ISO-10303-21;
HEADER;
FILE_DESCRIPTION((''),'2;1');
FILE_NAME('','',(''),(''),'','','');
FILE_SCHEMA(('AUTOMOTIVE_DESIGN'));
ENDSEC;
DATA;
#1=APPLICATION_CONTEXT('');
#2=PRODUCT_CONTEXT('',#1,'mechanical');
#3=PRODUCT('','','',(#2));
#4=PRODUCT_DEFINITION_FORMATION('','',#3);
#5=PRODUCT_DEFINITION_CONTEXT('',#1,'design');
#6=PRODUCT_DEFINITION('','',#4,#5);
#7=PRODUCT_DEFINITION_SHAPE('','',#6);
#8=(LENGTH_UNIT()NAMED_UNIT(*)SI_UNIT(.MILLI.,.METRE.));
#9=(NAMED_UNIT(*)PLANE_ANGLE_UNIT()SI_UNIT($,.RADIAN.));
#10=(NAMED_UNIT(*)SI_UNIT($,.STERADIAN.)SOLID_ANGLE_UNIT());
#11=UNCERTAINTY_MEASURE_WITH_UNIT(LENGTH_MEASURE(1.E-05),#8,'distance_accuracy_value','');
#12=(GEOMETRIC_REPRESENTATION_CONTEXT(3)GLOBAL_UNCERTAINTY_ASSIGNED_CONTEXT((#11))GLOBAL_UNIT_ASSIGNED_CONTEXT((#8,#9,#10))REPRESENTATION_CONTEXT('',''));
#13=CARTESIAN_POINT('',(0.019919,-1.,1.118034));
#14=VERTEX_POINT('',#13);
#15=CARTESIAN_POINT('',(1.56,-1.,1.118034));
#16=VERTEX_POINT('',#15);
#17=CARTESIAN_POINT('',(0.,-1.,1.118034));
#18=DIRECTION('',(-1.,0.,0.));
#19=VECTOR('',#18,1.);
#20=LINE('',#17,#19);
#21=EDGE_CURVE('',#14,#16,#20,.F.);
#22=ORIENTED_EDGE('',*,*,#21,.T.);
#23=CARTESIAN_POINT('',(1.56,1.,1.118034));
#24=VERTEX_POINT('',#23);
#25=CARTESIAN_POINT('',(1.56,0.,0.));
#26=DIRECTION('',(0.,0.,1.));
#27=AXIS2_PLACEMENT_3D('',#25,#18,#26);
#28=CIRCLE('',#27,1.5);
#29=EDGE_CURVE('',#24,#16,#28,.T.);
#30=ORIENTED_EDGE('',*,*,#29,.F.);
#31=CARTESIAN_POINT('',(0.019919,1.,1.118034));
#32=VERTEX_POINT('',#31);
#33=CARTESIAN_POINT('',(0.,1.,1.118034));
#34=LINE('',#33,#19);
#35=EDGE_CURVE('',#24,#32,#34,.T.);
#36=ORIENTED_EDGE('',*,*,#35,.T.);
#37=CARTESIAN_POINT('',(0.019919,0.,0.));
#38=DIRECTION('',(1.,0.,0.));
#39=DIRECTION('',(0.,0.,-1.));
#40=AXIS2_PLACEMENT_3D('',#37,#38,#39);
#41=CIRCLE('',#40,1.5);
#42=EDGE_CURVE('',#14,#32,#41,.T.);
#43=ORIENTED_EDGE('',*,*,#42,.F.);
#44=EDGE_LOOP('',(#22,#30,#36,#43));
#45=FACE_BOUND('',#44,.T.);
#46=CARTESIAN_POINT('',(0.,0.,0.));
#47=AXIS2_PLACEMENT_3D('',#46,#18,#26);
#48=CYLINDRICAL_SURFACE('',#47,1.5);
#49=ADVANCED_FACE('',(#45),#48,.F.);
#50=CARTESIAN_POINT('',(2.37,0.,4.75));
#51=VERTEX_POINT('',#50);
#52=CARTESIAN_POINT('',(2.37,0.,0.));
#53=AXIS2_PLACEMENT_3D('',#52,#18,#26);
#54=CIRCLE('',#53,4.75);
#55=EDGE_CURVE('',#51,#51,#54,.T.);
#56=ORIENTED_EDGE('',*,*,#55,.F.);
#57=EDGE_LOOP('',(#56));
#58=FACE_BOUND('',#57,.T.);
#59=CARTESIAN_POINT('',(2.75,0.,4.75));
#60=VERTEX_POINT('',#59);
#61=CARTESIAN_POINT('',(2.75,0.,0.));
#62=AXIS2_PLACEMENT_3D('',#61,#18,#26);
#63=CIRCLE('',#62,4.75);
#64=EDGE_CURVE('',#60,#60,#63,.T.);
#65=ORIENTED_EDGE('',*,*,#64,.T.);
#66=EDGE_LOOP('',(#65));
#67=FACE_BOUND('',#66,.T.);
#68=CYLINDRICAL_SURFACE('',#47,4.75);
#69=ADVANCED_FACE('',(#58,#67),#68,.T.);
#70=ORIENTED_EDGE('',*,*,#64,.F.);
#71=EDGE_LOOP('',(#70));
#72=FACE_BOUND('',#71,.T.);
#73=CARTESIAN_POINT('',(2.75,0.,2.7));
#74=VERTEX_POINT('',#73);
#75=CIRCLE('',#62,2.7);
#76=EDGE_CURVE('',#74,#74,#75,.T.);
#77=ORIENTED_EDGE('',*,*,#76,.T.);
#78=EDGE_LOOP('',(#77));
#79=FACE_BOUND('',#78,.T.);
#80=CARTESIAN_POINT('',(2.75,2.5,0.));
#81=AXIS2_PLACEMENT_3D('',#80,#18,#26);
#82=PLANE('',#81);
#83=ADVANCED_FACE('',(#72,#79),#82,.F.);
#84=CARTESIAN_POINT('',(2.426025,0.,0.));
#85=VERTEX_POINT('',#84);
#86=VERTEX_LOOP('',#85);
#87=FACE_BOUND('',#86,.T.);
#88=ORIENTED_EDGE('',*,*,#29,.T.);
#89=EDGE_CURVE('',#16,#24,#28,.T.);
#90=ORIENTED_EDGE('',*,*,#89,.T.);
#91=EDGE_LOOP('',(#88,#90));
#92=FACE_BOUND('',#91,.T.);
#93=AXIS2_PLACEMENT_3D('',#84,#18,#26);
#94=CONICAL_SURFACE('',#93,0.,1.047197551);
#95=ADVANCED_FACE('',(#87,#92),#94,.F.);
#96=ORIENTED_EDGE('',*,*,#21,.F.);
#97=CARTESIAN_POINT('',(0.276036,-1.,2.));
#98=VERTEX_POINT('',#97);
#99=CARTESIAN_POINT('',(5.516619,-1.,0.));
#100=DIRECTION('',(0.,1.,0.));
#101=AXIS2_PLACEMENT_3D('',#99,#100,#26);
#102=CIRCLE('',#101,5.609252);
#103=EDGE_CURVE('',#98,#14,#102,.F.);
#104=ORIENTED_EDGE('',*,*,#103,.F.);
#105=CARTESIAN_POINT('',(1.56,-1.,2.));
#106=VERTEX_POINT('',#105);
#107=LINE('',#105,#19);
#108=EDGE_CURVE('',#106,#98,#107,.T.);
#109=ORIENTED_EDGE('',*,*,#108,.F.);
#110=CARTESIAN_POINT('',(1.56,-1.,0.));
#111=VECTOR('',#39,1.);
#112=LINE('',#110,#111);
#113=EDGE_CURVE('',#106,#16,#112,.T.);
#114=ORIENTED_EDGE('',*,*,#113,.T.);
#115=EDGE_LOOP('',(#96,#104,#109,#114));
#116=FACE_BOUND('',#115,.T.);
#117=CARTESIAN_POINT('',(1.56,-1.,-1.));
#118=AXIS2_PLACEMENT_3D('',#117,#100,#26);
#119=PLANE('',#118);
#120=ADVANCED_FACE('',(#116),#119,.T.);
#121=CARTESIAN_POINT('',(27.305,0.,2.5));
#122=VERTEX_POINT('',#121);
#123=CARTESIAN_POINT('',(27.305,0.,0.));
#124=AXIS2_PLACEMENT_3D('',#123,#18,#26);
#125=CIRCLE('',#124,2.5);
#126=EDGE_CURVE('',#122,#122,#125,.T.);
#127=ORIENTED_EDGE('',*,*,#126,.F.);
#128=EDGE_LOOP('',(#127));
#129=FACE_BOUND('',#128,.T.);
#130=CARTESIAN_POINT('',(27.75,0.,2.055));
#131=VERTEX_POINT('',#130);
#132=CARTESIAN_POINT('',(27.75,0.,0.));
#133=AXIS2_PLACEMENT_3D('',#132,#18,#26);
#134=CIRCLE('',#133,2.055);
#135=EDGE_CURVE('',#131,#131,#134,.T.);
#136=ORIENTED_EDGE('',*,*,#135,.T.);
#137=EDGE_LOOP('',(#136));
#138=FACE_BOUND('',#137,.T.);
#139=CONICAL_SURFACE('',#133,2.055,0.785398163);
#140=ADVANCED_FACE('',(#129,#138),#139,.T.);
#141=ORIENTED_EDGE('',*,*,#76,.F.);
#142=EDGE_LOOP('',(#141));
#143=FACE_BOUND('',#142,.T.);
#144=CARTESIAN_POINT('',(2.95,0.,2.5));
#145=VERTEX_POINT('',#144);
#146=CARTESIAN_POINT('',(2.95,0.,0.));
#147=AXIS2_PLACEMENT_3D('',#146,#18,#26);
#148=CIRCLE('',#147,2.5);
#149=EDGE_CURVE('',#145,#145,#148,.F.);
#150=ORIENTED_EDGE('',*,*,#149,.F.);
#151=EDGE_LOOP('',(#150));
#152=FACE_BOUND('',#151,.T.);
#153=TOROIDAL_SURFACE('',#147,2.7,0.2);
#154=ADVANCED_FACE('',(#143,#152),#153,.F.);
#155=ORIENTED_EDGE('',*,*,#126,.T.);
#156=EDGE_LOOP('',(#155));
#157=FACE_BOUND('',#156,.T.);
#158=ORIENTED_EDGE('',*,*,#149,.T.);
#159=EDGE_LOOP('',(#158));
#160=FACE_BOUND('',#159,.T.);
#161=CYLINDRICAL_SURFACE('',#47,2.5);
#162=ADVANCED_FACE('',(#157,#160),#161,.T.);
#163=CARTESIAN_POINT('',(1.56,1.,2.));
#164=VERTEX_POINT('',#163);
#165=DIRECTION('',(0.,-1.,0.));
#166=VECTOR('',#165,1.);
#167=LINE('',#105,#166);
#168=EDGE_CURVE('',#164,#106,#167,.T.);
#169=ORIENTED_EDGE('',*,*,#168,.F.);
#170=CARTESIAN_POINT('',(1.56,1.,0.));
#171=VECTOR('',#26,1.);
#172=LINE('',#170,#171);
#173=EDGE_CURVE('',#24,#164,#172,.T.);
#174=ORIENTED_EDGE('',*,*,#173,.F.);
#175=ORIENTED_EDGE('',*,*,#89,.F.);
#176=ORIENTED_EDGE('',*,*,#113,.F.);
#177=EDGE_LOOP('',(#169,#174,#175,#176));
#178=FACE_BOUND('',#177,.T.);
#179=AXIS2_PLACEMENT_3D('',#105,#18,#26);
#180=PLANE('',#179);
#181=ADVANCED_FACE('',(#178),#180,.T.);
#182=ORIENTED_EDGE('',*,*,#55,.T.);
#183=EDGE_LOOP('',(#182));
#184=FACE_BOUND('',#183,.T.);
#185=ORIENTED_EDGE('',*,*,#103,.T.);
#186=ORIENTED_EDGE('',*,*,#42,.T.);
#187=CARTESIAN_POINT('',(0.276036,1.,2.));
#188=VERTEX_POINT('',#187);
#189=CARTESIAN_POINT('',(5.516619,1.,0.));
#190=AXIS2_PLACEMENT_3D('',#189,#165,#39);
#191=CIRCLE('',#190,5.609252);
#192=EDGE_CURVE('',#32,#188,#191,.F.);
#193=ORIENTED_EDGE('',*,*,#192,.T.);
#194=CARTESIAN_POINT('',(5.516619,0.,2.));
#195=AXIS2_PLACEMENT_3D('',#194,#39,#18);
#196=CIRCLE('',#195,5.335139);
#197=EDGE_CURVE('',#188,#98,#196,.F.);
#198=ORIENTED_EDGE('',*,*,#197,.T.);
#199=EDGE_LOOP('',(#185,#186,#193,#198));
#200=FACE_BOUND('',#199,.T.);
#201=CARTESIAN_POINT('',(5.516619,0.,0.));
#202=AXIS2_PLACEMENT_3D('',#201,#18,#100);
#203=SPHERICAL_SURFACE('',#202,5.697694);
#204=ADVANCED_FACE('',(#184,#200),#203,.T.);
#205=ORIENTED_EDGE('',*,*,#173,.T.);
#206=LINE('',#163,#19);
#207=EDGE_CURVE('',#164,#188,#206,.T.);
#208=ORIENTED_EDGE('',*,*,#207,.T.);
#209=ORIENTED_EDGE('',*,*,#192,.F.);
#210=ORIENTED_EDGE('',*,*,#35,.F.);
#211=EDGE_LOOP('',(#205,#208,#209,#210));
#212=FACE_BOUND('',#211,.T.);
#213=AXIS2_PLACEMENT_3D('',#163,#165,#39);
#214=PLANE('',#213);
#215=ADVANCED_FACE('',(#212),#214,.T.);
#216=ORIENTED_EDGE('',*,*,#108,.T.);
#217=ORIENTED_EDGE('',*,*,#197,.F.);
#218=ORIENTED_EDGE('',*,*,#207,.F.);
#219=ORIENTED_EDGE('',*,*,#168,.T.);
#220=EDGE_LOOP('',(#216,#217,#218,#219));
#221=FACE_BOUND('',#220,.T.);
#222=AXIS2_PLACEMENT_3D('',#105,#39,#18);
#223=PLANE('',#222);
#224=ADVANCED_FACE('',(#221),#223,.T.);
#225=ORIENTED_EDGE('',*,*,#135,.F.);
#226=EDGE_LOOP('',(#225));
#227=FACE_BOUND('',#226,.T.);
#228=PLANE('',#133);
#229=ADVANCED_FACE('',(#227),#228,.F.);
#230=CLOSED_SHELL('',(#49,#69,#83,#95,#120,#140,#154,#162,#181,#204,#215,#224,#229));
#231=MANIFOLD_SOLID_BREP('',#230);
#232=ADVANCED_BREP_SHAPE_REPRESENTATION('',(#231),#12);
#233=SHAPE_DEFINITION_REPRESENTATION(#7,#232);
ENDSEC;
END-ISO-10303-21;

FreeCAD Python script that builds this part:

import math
import FreeCAD as App
import Part
import Sketcher

V = App.Vector
Q = App.Units.Quantity


def edges_at(feature, points):
    """Names of the edges that pass closest to the given points."""
    edges = feature.Shape.Edges
    near = lambda p: min(range(len(edges)), key=lambda i: edges[i].distToShape(Part.Vertex(*p))[0])
    return sorted({f"Edge{near(p) + 1}" for p in points})


def add_polygon(sketch, points):
    """Adds a closed chain of lines whose ends are joined by coincident constraints."""
    first, n = sketch.GeometryCount, len(points)
    for a, b in zip(points, points[1:] + points[:1]):
        sketch.addGeometry(Part.LineSegment(App.Vector(*a, 0), App.Vector(*b, 0)), False)
    for i in range(n):
        sketch.addConstraint(Sketcher.Constraint("Coincident", first + i, 2, first + (i + 1) % n, 1))

doc = App.newDocument("Part")
body = doc.addObject("PartDesign::Body", "Body")

# Sketch on XY plane
sketch1 = doc.addObject("Sketcher::SketchObject", "Sketch")
body.addObject(sketch1)
sketch1.AttachmentSupport = (doc.XY_Plane, [""])
sketch1.MapMode = "FlatFace"
sketch1.addGeometry([
    Part.LineSegment(V(27.75, 0, 0), V(27.75, 2.06, 0)),  # 0
    Part.LineSegment(V(27.75, 2.06, 0), V(27.3, 2.5, 0)),  # 1
    Part.LineSegment(V(27.3, 2.5, 0), V(2.75, 2.5, 0)),  # 2
    Part.LineSegment(V(2.75, 2.5, 0), V(2.75, 4.75, 0)),  # 3
    Part.LineSegment(V(2.75, 4.75, 0), V(2.37, 4.75, 0)),  # 4
    Part.ArcOfCircle(Part.Circle(V(5.52, 0, 0), V(0, 0, 1), 5.7), math.radians(124), math.radians(166)),  # 5
    Part.LineSegment(V(0, 1.43, 0), V(0, 0, 0)),  # 6
    Part.LineSegment(V(0, 0, 0), V(27.75, 0, 0)),  # 7
], False)
sketch1.addConstraint([
    Sketcher.Constraint("Coincident", 0, 2, 1, 1),
    Sketcher.Constraint("Coincident", 1, 2, 2, 1),
    Sketcher.Constraint("Coincident", 2, 2, 3, 1),
    Sketcher.Constraint("Coincident", 3, 2, 4, 1),
    Sketcher.Constraint("Coincident", 4, 2, 5, 1),
    Sketcher.Constraint("Coincident", 5, 2, 6, 1),
    Sketcher.Constraint("Coincident", 6, 2, 7, 1),
    Sketcher.Constraint("Coincident", 7, 2, 0, 1),
    Sketcher.Constraint("Vertical", 0),
    Sketcher.Constraint("Horizontal", 2),
    Sketcher.Constraint("Vertical", 3),
    Sketcher.Constraint("Horizontal", 4),
    Sketcher.Constraint("Vertical", 6),
    Sketcher.Constraint("Horizontal", 7),
    Sketcher.Constraint("Coincident", 6, 2, -1, 1),
    Sketcher.Constraint("PointOnObject", 5, 3, -1),
    Sketcher.Constraint("Angle", 1, Q("135 deg")),
    Sketcher.Constraint("DistanceX", 2, 2, 0, 2, Q("25 mm")),
    Sketcher.Constraint("DistanceX", 4, 2, 4, 1, Q("0.38 mm")),
    Sketcher.Constraint("DistanceX", 7, 1, 7, 2, Q("27.75 mm")),
    Sketcher.Constraint("DistanceY", 3, 1, 3, 2, Q("2.25 mm")),
    Sketcher.Constraint("DistanceY", -1, 1, 1, 2, Q("2.5 mm")),
    Sketcher.Constraint("DistanceX", 2, 2, 2, 1, Q("24.555 mm")),
    Sketcher.Constraint("DistanceY", 6, 2, 6, 1, Q("1.425 mm")),
])
revolution = doc.addObject("PartDesign::Revolution", "Revolution")
body.addObject(revolution)
revolution.Profile = sketch1
revolution.ReferenceAxis = (sketch1, ["H_Axis"])
revolution.Angle = 360
doc.recompute()

fillet = doc.addObject("PartDesign::Fillet", "Fillet")
body.addObject(fillet)
fillet.Base = (revolution, edges_at(revolution, [(2.75, -2.5, 0)]))
fillet.Radius = 0.2

# Sketch on XY plane
sketch2 = doc.addObject("Sketcher::SketchObject", "Sketch001")
body.addObject(sketch2)
sketch2.AttachmentSupport = (doc.XY_Plane, [""])
sketch2.MapMode = "FlatFace"
add_polygon(sketch2, [(1.6, 1.5), (0, 1.5), (0, 0), (2.4, 0)])  # lines 0-3
sketch2.addConstraint([
    Sketcher.Constraint("Horizontal", 0),
    Sketcher.Constraint("Vertical", 1),
    Sketcher.Constraint("Horizontal", 2),
    Sketcher.Constraint("Coincident", 1, 2, -1, 1),
    Sketcher.Constraint("Angle", 3, Q("120 deg")),
    Sketcher.Constraint("DistanceY", 1, 2, 1, 1, Q("1.5 mm")),
    Sketcher.Constraint("DistanceX", 0, 2, 0, 1, Q("1.56 mm")),
])
groove = doc.addObject("PartDesign::Groove", "Groove")
body.addObject(groove)
groove.Profile = sketch2
groove.ReferenceAxis = (sketch2, ["H_Axis"])
groove.Angle = 360

# Sketch on YZ plane
sketch3 = doc.addObject("Sketcher::SketchObject", "Sketch002")
body.addObject(sketch3)
sketch3.AttachmentSupport = (doc.YZ_Plane, [""])
sketch3.MapMode = "FlatFace"
add_polygon(sketch3, [(1, 2), (-1, 2), (-1, -1), (1, -1)])  # lines 0-3
sketch3.addConstraint([
    Sketcher.Constraint("Horizontal", 0),
    Sketcher.Constraint("Vertical", 1),
    Sketcher.Constraint("Horizontal", 2),
    Sketcher.Constraint("Vertical", 3),
    Sketcher.Constraint("DistanceX", 0, 2, 0, 1, Q("2 mm")),
    Sketcher.Constraint("DistanceY", 1, 2, 1, 1, Q("3 mm")),
    Sketcher.Constraint("DistanceX", 0, 2, -1, 1, Q("1 mm")),
    Sketcher.Constraint("DistanceY", -1, 1, 0, 2, Q("2 mm")),
])
pocket1 = doc.addObject("PartDesign::Pocket", "Pocket")
body.addObject(pocket1)
pocket1.Profile = sketch3
pocket1.Length = 1.56
pocket1.Reversed = True

doc.recompute()
